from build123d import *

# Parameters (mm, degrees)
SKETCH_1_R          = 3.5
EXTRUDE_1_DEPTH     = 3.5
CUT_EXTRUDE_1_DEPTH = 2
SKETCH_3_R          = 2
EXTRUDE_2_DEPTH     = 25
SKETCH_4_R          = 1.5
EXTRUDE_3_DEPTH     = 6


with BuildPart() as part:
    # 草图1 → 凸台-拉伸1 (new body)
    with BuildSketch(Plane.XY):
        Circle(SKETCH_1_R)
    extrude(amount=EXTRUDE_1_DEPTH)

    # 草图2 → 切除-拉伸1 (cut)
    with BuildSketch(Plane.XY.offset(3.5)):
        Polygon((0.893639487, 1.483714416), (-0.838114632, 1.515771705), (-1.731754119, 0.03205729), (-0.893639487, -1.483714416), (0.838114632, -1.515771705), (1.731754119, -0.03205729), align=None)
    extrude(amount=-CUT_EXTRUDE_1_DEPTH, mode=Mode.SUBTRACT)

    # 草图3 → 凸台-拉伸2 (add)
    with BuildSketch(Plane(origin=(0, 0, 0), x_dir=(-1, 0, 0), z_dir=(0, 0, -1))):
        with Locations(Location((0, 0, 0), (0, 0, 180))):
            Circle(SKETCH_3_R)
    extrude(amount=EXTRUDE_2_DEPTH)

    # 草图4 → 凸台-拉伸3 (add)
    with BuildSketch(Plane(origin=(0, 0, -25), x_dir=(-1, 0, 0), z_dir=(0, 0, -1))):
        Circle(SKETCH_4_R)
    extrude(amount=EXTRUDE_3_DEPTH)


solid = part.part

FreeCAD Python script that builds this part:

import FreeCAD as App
import Part
import Sketcher

V = App.Vector


def add_polygon(sketch, points):
    """Adds a closed chain of lines whose ends are joined by coincident constraints."""
    first, n = sketch.GeometryCount, len(points)
    for a, b in zip(points, points[1:] + points[:1]):
        sketch.addGeometry(Part.LineSegment(App.Vector(*a, 0), App.Vector(*b, 0)), False)
    for i in range(n):
        sketch.addConstraint(Sketcher.Constraint("Coincident", first + i, 2, first + (i + 1) % n, 1))

doc = App.newDocument("Part")
body = doc.addObject("PartDesign::Body", "Body")

# Sketch on XY plane
sketch1 = body.newObject("Sketcher::SketchObject", "Sketch")
sketch1.AttachmentSupport = (doc.getObject("XY_Plane"), [""])
sketch1.MapMode = "FlatFace"
sketch1.addGeometry(Part.Circle(V(0, 0, 0), V(0, 0, 1), 3.5), False)
sketch1.addConstraint(Sketcher.Constraint("Coincident", 0, 3, -1, 1))
sketch1.addConstraint(Sketcher.Constraint("Diameter", 0, 7.0))
pad1 = body.newObject("PartDesign::Pad", "Pad")
pad1.Profile = sketch1
pad1.Length = 3.5

# Sketch on XY plane
sketch2 = body.newObject("Sketcher::SketchObject", "Sketch001")
sketch2.AttachmentSupport = (doc.getObject("XY_Plane"), [""])
sketch2.MapMode = "FlatFace"
sketch2.AttachmentOffset = App.Placement(V(0, 0, 3.5), App.Rotation())
add_polygon(sketch2, [(0.9, 1.5), (-0.8, 1.5), (-1.7, 0), (-0.9, -1.5), (0.8, -1.5), (1.7, 0)])  # lines 0-5
sketch2.addConstraint(Sketcher.Constraint("Symmetric", 0, 2, 3, 2, -1, 1))
sketch2.addConstraint(Sketcher.Constraint("Symmetric", 1, 2, 4, 2, -1, 1))
sketch2.addConstraint(Sketcher.Constraint("Symmetric", 2, 2, 5, 2, -1, 1))
sketch2.addConstraint(Sketcher.Constraint("Equal", 0, 1))
sketch2.addConstraint(Sketcher.Constraint("Equal", 1, 2))
sketch2.addConstraint(Sketcher.Constraint("Distance", 0, 1.732051))
sketch2.addConstraint(Sketcher.Constraint("DistanceY", -1, 1, 0, 2, 1.515772))
sketch2.addConstraint(Sketcher.Constraint("DistanceX", 2, 2, -1, 1, 0.893639))
sketch2.addConstraint(Sketcher.Constraint("DistanceX", 1, 2, 0, 2, 0.893639))
pocket1 = body.newObject("PartDesign::Pocket", "Pocket")
pocket1.Profile = sketch2
pocket1.Length = 2

# Sketch on XY plane
sketch3 = body.newObject("Sketcher::SketchObject", "Sketch002")
sketch3.AttachmentSupport = (doc.getObject("XY_Plane"), [""])
sketch3.MapMode = "FlatFace"
sketch3.addGeometry(Part.Circle(V(0, 0, 0), V(0, 0, 1), 2), False)
sketch3.addConstraint(Sketcher.Constraint("Coincident", 0, 3, -1, 1))
sketch3.addConstraint(Sketcher.Constraint("Diameter", 0, 4.0))
pad2 = body.newObject("PartDesign::Pad", "Pad001")
pad2.Profile = sketch3
pad2.Length = 25
pad2.Reversed = True

# Sketch on XY plane
sketch4 = body.newObject("Sketcher::SketchObject", "Sketch003")
sketch4.AttachmentSupport = (doc.getObject("XY_Plane"), [""])
sketch4.MapMode = "FlatFace"
sketch4.AttachmentOffset = App.Placement(V(0, 0, -25), App.Rotation())
sketch4.addGeometry(Part.Circle(V(0, 0, 0), V(0, 0, 1), 1.5), False)
sketch4.addConstraint(Sketcher.Constraint("Coincident", 0, 3, -1, 1))
sketch4.addConstraint(Sketcher.Constraint("Diameter", 0, 3.0))
pad3 = body.newObject("PartDesign::Pad", "Pad002")
pad3.Profile = sketch4
pad3.Length = 6
pad3.Reversed = True

doc.recompute()
